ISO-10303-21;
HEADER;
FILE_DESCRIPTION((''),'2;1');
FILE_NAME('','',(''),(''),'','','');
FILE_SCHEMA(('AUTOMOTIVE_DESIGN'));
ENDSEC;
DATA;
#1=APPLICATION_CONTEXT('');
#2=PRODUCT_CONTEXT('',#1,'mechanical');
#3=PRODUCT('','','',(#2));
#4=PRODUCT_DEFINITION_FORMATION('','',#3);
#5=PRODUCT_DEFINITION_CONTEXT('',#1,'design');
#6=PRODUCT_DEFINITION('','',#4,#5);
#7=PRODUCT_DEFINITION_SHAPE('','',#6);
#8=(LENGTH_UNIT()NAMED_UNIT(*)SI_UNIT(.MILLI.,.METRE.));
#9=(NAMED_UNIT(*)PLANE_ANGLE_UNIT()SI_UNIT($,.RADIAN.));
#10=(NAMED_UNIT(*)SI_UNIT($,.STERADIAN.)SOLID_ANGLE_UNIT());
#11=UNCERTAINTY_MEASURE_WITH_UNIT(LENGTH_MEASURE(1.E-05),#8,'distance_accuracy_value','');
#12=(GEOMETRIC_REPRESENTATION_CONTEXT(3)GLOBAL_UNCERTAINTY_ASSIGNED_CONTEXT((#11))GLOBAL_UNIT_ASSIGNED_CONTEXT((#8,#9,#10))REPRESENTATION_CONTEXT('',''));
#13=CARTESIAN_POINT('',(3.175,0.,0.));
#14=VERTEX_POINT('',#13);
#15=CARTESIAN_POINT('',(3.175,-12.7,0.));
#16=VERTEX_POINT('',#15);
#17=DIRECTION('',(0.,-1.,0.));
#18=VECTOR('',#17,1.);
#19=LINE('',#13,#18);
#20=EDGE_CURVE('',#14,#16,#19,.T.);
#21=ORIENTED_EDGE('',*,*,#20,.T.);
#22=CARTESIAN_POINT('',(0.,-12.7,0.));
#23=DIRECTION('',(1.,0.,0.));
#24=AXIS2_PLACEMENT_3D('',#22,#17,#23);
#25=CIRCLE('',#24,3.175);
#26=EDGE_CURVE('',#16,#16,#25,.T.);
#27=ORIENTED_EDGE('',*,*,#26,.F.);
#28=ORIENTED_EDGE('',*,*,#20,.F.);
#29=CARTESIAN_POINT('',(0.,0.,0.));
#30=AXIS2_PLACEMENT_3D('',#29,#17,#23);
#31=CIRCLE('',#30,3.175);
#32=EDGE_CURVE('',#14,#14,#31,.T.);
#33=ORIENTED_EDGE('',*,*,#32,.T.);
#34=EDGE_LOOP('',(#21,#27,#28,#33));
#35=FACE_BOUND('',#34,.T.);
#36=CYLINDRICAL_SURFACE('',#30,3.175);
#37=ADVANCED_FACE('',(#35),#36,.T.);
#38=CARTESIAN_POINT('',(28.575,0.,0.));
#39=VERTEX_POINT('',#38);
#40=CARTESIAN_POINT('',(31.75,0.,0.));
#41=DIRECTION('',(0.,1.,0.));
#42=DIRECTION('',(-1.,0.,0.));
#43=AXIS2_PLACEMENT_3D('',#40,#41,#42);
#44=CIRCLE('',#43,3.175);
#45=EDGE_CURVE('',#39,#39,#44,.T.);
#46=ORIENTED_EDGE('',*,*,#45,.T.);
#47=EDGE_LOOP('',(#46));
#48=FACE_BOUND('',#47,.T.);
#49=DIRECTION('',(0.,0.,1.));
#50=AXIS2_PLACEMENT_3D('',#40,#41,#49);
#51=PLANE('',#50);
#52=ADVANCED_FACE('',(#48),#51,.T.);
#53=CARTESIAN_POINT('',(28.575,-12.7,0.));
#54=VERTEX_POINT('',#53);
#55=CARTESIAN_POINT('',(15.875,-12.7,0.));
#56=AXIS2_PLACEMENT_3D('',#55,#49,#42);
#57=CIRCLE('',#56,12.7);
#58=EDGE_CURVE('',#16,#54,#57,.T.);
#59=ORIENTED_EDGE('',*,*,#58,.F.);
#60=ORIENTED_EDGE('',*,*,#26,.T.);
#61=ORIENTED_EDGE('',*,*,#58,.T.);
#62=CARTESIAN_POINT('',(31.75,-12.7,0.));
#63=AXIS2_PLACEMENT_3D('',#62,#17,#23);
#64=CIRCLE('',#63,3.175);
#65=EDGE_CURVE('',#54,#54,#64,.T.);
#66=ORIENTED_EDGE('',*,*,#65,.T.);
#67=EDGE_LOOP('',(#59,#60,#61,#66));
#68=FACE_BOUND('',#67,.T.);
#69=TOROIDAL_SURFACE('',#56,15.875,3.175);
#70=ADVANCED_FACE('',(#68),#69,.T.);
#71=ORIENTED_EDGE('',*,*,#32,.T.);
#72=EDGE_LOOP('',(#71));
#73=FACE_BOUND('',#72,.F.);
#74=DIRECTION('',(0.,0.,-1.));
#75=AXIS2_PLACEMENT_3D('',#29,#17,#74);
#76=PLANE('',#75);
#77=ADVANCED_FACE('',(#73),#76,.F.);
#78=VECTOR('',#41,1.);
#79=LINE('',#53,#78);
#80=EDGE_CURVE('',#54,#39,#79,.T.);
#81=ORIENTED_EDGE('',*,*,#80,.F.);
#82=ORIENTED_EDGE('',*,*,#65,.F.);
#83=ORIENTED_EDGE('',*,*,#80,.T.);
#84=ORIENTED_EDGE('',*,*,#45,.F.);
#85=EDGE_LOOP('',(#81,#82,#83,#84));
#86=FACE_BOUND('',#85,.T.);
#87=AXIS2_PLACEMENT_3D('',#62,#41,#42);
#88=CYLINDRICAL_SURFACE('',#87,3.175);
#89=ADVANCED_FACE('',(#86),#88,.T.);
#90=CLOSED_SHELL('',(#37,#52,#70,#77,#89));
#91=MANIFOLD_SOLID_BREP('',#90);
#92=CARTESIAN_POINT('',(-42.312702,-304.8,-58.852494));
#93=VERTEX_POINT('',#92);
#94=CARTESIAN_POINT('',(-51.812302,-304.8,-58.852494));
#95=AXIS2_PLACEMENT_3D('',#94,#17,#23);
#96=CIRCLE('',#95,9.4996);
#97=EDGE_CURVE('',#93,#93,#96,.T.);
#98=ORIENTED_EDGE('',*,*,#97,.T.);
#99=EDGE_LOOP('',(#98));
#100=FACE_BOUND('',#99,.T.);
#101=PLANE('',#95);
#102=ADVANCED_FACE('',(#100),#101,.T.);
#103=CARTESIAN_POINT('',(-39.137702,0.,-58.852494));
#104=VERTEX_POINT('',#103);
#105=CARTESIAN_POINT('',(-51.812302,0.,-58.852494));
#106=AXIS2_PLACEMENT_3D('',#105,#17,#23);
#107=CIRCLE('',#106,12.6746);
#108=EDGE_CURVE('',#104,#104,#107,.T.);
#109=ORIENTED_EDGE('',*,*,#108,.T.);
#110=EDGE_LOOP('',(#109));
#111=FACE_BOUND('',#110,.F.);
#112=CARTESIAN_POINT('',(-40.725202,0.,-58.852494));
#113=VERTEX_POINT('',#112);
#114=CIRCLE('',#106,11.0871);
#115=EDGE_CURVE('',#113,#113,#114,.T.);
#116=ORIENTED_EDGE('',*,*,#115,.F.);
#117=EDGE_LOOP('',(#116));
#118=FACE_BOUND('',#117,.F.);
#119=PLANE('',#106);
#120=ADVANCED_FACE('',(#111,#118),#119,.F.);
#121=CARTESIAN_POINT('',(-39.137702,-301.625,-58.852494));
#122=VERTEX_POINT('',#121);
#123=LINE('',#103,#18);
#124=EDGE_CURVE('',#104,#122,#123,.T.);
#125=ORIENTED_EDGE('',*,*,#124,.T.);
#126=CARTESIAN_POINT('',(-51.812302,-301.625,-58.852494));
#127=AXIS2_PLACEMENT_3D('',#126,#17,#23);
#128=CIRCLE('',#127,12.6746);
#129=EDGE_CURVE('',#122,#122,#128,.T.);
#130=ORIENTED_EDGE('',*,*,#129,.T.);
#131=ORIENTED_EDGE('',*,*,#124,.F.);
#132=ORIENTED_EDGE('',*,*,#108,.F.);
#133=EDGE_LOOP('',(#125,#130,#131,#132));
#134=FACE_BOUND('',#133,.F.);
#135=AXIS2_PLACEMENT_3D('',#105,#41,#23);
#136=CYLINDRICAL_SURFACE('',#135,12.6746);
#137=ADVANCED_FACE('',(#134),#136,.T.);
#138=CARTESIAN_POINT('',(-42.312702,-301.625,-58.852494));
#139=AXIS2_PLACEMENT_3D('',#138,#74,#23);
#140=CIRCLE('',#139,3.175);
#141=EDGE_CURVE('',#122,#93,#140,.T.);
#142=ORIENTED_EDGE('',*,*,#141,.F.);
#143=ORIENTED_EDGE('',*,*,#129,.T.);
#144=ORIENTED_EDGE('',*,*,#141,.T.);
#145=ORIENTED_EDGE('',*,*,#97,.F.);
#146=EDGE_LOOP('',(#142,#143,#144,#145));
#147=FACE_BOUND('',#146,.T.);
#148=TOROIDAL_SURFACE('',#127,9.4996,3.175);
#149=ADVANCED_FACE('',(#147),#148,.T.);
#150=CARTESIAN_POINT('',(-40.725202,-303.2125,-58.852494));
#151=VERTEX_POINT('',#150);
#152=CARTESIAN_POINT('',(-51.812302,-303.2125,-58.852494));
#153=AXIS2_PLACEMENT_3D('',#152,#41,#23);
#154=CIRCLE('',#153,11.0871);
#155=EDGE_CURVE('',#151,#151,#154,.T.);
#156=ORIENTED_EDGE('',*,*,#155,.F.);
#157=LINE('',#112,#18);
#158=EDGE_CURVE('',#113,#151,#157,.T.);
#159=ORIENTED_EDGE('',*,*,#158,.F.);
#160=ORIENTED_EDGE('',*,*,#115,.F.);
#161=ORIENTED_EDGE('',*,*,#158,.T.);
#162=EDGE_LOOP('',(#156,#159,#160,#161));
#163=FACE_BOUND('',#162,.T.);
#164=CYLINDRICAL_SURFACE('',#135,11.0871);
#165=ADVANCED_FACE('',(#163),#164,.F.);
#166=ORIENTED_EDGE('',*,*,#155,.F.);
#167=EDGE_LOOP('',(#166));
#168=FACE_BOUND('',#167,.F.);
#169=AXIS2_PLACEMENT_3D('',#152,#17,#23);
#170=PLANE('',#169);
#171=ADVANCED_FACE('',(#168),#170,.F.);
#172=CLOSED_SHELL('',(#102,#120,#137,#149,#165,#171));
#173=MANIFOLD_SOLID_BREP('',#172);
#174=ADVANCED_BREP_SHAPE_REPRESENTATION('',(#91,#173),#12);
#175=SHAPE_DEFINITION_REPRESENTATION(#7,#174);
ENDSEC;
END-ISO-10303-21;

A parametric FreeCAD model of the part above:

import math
import FreeCAD as App
import Part
import Sketcher

V = App.Vector
Q = App.Units.Quantity


def edges_at(feature, points):
    """Names of the edges that pass closest to the given points."""
    edges = feature.Shape.Edges
    near = lambda p: min(range(len(edges)), key=lambda i: edges[i].distToShape(Part.Vertex(*p))[0])
    return sorted({f"Edge{near(p) + 1}" for p in points})


def faces_at(feature, points):
    """Names of the faces that lie closest to the given points."""
    faces = feature.Shape.Faces
    near = lambda p: min(range(len(faces)), key=lambda i: faces[i].distToShape(Part.Vertex(*p))[0])
    return sorted({f"Face{near(p) + 1}" for p in points})

doc = App.newDocument("Part")
params = doc.addObject("Spreadsheet::Sheet", "Params")
for row, (alias, value) in enumerate([
    ("sketch1_diameter", "0.25 in"),
    ("sketch2_height", "0.5 in"),
    ("sketch2_radius", "0.625 in"),
    ("sketch3_diameter", "0.998 in"),
    ("pad1_length", "12 in"),
    ("thickness_wall", "0.0625 in"),
    ("fillet_radius", "0.125 in"),
], start=1):
    params.set(f"A{row}", alias)
    params.set(f"B{row}", "=" + value)
    params.setAlias(f"B{row}", alias)

body = doc.addObject("PartDesign::Body", "Body")

sketch1 = body.newObject("Sketcher::SketchObject", "Sketch")
sketch1.AttachmentSupport = (doc.getObject("XZ_Plane"), [""])
sketch1.MapMode = "FlatFace"
sketch1.addGeometry(Part.Circle(V(0, 0, 0), V(0, 0, 1), 3.2), False)
sketch1.addConstraint([
    Sketcher.Constraint("Coincident", 0, 3, -1, 1),
    Sketcher.Constraint("Diameter", 0, Q("0.25 in")),
])
sketch1.setExpression("Constraints[1]", "Params.sketch1_diameter")

sketch2 = body.newObject("Sketcher::SketchObject", "Sketch001")
sketch2.AttachmentSupport = (doc.getObject("XY_Plane"), [""])
sketch2.MapMode = "FlatFace"
sketch2.addGeometry([
    Part.LineSegment(V(0, 0, 0), V(0, -13, 0)),
    Part.ArcOfCircle(Part.Circle(V(16, -13, 0), V(0, 0, 1), 16), math.radians(180), math.radians(360)),
    Part.LineSegment(V(32, -13, 0), V(32, 0, 0)),
], False)
sketch2.addConstraint([
    Sketcher.Constraint("Tangent", 0, 2, 1, 1),
    Sketcher.Constraint("Tangent", 1, 2, 2, 1),
    Sketcher.Constraint("Vertical", 0),
    Sketcher.Constraint("Vertical", 2),
    Sketcher.Constraint("Coincident", 0, 1, -1, 1),
    Sketcher.Constraint("PointOnObject", 2, 2, -1),
    Sketcher.Constraint("DistanceY", 0, 2, 0, 1, Q("0.5 in")),
    Sketcher.Constraint("Radius", 1, Q("0.625 in")),
])
sketch2.setExpression("Constraints[6]", "Params.sketch2_height")
sketch2.setExpression("Constraints[7]", "Params.sketch2_radius")
doc.recompute()

additivepipe = body.newObject("PartDesign::AdditivePipe", "AdditivePipe")
additivepipe.Profile = sketch1
additivepipe.Spine = (sketch2, ["Edge1", "Edge2", "Edge3"])
body2 = doc.addObject("PartDesign::Body", "Body001")

sketch3 = body2.newObject("Sketcher::SketchObject", "Sketch002")
sketch3.AttachmentSupport = (doc.getObject("XZ_Plane001"), [""])
sketch3.MapMode = "FlatFace"
sketch3.addGeometry(Part.Circle(V(-52, -59, 0), V(0, 0, 1), 13), False)
sketch3.addConstraint([
    Sketcher.Constraint("Diameter", 0, Q("0.998 in")),
    Sketcher.Constraint("DistanceX", 0, 3, -1, 1, Q("51.812302 mm")),
    Sketcher.Constraint("DistanceY", 0, 3, -1, 1, Q("58.852494 mm")),
])
sketch3.setExpression("Constraints[0]", "Params.sketch3_diameter")
pad1 = body2.newObject("PartDesign::Pad", "Pad")
pad1.Profile = sketch3
pad1.setExpression("Length", "Params.pad1_length")
doc.recompute()

thickness = body2.newObject("PartDesign::Thickness", "Thickness")
thickness.Base = (pad1, faces_at(pad1, [(-51.812, 0, -58.852)]))
thickness.setExpression("Value", "Params.thickness_wall")
thickness.Reversed = True
thickness.Join = "Arc"
doc.recompute()

fillet = body2.newObject("PartDesign::Fillet", "Fillet")
fillet.Base = (thickness, edges_at(thickness, [(-64.487, -304.8, -58.852)]))
fillet.setExpression("Radius", "Params.fillet_radius")

doc.recompute()
